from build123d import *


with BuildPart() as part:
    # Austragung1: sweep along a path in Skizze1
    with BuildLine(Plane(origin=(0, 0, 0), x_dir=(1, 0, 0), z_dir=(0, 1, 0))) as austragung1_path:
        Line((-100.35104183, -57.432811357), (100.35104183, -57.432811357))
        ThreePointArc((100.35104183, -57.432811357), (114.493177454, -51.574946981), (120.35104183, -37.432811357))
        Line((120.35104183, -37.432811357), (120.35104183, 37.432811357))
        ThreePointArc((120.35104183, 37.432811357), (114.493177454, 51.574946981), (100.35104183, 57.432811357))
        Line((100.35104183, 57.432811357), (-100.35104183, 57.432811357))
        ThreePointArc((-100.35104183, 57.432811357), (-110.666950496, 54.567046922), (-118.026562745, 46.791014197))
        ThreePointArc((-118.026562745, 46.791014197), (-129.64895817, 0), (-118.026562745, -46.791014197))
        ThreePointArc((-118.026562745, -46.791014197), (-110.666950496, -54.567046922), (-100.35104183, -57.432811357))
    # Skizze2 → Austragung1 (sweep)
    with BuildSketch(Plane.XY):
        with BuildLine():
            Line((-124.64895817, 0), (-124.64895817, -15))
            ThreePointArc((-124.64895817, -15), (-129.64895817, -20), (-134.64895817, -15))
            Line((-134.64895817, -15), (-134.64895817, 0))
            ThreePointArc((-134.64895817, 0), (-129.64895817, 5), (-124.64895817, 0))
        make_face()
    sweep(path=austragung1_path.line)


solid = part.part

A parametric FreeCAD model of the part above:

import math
import FreeCAD as App
import Part
import Sketcher
from FreeCAD import Vector
Q = App.Units.Quantity

doc = App.newDocument("Part")
body = doc.addObject("PartDesign::Body", "Body")

# Sketch on XY plane
sketch1 = body.newObject("Sketcher::SketchObject", "Sketch")
sketch1.AttachmentSupport = (doc.getObject("XY_Plane"), [""])
sketch1.MapMode = "FlatFace"
sketch1.addGeometry(Part.LineSegment(Vector(-125, -15, 0), Vector(-125, 0, 0)), False)
sketch1.addGeometry(Part.ArcOfCircle(Part.Circle(Vector(-130, 0, 0), Vector(0, 0, 1), 5), math.radians(0), math.radians(180)), False)
sketch1.addGeometry(Part.LineSegment(Vector(-135, 0, 0), Vector(-135, -15, 0)), False)
sketch1.addGeometry(Part.ArcOfCircle(Part.Circle(Vector(-130, -15, 0), Vector(0, 0, 1), 5), math.radians(180), math.radians(360)), False)
sketch1.addConstraint(Sketcher.Constraint("Tangent", 0, 2, 1, 1))
sketch1.addConstraint(Sketcher.Constraint("Tangent", 1, 2, 2, 1))
sketch1.addConstraint(Sketcher.Constraint("Tangent", 2, 2, 3, 1))
sketch1.addConstraint(Sketcher.Constraint("Tangent", 3, 2, 0, 1))
sketch1.addConstraint(Sketcher.Constraint("Vertical", 0))
sketch1.addConstraint(Sketcher.Constraint("Vertical", 2))
sketch1.addConstraint(Sketcher.Constraint("PointOnObject", 1, 3, -1))
sketch1.addConstraint(Sketcher.Constraint("Radius", 1, Q("5 mm")))
sketch1.addConstraint(Sketcher.Constraint("DistanceY", 0, 1, 0, 2, Q("15 mm")))
sketch1.addConstraint(Sketcher.Constraint("DistanceX", 1, 3, -1, 1, Q("129.648958 mm")))

# Sketch on XZ plane
sketch2 = body.newObject("Sketcher::SketchObject", "Sketch001")
sketch2.AttachmentSupport = (doc.getObject("XZ_Plane"), [""])
sketch2.MapMode = "FlatFace"
sketch2.addGeometry(Part.LineSegment(Vector(-100, 57, 0), Vector(100, 57, 0)), False)
sketch2.addGeometry(Part.ArcOfCircle(Part.Circle(Vector(100, 37, 0), Vector(0, 0, 1), 20), math.radians(0), math.radians(90)), False)
sketch2.addGeometry(Part.LineSegment(Vector(120, 37, 0), Vector(120, -37, 0)), False)
sketch2.addGeometry(Part.ArcOfCircle(Part.Circle(Vector(100, -37, 0), Vector(0, 0, 1), 20), math.radians(-90), math.radians(0)), False)
sketch2.addGeometry(Part.LineSegment(Vector(100, -57, 0), Vector(-100, -57, 0)), False)
sketch2.addGeometry(Part.ArcOfCircle(Part.Circle(Vector(-100, -37, 0), Vector(0, 0, 1), 20), math.radians(-152), math.radians(-90)), False)
sketch2.addGeometry(Part.ArcOfCircle(Part.Circle(Vector(-30, 0, 0), Vector(0, 0, 1), 100), math.radians(152), math.radians(208)), False)
sketch2.addGeometry(Part.ArcOfCircle(Part.Circle(Vector(-100, 37, 0), Vector(0, 0, 1), 20), math.radians(90), math.radians(152)), False)
sketch2.addConstraint(Sketcher.Constraint("Tangent", 0, 2, 1, 2))
sketch2.addConstraint(Sketcher.Constraint("Tangent", 1, 1, 2, 1))
sketch2.addConstraint(Sketcher.Constraint("Tangent", 2, 2, 3, 2))
sketch2.addConstraint(Sketcher.Constraint("Tangent", 3, 1, 4, 1))
sketch2.addConstraint(Sketcher.Constraint("Tangent", 4, 2, 5, 2))
sketch2.addConstraint(Sketcher.Constraint("Tangent", 5, 1, 6, 2))
sketch2.addConstraint(Sketcher.Constraint("Tangent", 6, 1, 7, 2))
sketch2.addConstraint(Sketcher.Constraint("Tangent", 7, 1, 0, 1))
sketch2.addConstraint(Sketcher.Constraint("Horizontal", 0))
sketch2.addConstraint(Sketcher.Constraint("Vertical", 2))
sketch2.addConstraint(Sketcher.Constraint("Horizontal", 4))
sketch2.addConstraint(Sketcher.Constraint("Equal", 1, 3))
sketch2.addConstraint(Sketcher.Constraint("Equal", 3, 5))
sketch2.addConstraint(Sketcher.Constraint("Equal", 5, 7))
sketch2.addConstraint(Sketcher.Constraint("Symmetric", 1, 3, 5, 3, -1, 1))
sketch2.addConstraint(Sketcher.Constraint("PointOnObject", 6, 3, -1))
sketch2.addConstraint(Sketcher.Constraint("Radius", 1, Q("20 mm")))
sketch2.addConstraint(Sketcher.Constraint("Radius", 6, Q("100 mm")))
sketch2.addConstraint(Sketcher.Constraint("DistanceX", 6, 3, 1, 3, Q("130 mm")))
sketch2.addConstraint(Sketcher.Constraint("DistanceX", 0, 1, 0, 2, Q("200.702084 mm")))
doc.recompute()

additivepipe = body.newObject("PartDesign::AdditivePipe", "AdditivePipe")
additivepipe.Profile = sketch1
additivepipe.Spine = (sketch2, ["Edge1", "Edge2", "Edge3", "Edge4", "Edge5", "Edge6", "Edge7", "Edge8"])

doc.recompute()
